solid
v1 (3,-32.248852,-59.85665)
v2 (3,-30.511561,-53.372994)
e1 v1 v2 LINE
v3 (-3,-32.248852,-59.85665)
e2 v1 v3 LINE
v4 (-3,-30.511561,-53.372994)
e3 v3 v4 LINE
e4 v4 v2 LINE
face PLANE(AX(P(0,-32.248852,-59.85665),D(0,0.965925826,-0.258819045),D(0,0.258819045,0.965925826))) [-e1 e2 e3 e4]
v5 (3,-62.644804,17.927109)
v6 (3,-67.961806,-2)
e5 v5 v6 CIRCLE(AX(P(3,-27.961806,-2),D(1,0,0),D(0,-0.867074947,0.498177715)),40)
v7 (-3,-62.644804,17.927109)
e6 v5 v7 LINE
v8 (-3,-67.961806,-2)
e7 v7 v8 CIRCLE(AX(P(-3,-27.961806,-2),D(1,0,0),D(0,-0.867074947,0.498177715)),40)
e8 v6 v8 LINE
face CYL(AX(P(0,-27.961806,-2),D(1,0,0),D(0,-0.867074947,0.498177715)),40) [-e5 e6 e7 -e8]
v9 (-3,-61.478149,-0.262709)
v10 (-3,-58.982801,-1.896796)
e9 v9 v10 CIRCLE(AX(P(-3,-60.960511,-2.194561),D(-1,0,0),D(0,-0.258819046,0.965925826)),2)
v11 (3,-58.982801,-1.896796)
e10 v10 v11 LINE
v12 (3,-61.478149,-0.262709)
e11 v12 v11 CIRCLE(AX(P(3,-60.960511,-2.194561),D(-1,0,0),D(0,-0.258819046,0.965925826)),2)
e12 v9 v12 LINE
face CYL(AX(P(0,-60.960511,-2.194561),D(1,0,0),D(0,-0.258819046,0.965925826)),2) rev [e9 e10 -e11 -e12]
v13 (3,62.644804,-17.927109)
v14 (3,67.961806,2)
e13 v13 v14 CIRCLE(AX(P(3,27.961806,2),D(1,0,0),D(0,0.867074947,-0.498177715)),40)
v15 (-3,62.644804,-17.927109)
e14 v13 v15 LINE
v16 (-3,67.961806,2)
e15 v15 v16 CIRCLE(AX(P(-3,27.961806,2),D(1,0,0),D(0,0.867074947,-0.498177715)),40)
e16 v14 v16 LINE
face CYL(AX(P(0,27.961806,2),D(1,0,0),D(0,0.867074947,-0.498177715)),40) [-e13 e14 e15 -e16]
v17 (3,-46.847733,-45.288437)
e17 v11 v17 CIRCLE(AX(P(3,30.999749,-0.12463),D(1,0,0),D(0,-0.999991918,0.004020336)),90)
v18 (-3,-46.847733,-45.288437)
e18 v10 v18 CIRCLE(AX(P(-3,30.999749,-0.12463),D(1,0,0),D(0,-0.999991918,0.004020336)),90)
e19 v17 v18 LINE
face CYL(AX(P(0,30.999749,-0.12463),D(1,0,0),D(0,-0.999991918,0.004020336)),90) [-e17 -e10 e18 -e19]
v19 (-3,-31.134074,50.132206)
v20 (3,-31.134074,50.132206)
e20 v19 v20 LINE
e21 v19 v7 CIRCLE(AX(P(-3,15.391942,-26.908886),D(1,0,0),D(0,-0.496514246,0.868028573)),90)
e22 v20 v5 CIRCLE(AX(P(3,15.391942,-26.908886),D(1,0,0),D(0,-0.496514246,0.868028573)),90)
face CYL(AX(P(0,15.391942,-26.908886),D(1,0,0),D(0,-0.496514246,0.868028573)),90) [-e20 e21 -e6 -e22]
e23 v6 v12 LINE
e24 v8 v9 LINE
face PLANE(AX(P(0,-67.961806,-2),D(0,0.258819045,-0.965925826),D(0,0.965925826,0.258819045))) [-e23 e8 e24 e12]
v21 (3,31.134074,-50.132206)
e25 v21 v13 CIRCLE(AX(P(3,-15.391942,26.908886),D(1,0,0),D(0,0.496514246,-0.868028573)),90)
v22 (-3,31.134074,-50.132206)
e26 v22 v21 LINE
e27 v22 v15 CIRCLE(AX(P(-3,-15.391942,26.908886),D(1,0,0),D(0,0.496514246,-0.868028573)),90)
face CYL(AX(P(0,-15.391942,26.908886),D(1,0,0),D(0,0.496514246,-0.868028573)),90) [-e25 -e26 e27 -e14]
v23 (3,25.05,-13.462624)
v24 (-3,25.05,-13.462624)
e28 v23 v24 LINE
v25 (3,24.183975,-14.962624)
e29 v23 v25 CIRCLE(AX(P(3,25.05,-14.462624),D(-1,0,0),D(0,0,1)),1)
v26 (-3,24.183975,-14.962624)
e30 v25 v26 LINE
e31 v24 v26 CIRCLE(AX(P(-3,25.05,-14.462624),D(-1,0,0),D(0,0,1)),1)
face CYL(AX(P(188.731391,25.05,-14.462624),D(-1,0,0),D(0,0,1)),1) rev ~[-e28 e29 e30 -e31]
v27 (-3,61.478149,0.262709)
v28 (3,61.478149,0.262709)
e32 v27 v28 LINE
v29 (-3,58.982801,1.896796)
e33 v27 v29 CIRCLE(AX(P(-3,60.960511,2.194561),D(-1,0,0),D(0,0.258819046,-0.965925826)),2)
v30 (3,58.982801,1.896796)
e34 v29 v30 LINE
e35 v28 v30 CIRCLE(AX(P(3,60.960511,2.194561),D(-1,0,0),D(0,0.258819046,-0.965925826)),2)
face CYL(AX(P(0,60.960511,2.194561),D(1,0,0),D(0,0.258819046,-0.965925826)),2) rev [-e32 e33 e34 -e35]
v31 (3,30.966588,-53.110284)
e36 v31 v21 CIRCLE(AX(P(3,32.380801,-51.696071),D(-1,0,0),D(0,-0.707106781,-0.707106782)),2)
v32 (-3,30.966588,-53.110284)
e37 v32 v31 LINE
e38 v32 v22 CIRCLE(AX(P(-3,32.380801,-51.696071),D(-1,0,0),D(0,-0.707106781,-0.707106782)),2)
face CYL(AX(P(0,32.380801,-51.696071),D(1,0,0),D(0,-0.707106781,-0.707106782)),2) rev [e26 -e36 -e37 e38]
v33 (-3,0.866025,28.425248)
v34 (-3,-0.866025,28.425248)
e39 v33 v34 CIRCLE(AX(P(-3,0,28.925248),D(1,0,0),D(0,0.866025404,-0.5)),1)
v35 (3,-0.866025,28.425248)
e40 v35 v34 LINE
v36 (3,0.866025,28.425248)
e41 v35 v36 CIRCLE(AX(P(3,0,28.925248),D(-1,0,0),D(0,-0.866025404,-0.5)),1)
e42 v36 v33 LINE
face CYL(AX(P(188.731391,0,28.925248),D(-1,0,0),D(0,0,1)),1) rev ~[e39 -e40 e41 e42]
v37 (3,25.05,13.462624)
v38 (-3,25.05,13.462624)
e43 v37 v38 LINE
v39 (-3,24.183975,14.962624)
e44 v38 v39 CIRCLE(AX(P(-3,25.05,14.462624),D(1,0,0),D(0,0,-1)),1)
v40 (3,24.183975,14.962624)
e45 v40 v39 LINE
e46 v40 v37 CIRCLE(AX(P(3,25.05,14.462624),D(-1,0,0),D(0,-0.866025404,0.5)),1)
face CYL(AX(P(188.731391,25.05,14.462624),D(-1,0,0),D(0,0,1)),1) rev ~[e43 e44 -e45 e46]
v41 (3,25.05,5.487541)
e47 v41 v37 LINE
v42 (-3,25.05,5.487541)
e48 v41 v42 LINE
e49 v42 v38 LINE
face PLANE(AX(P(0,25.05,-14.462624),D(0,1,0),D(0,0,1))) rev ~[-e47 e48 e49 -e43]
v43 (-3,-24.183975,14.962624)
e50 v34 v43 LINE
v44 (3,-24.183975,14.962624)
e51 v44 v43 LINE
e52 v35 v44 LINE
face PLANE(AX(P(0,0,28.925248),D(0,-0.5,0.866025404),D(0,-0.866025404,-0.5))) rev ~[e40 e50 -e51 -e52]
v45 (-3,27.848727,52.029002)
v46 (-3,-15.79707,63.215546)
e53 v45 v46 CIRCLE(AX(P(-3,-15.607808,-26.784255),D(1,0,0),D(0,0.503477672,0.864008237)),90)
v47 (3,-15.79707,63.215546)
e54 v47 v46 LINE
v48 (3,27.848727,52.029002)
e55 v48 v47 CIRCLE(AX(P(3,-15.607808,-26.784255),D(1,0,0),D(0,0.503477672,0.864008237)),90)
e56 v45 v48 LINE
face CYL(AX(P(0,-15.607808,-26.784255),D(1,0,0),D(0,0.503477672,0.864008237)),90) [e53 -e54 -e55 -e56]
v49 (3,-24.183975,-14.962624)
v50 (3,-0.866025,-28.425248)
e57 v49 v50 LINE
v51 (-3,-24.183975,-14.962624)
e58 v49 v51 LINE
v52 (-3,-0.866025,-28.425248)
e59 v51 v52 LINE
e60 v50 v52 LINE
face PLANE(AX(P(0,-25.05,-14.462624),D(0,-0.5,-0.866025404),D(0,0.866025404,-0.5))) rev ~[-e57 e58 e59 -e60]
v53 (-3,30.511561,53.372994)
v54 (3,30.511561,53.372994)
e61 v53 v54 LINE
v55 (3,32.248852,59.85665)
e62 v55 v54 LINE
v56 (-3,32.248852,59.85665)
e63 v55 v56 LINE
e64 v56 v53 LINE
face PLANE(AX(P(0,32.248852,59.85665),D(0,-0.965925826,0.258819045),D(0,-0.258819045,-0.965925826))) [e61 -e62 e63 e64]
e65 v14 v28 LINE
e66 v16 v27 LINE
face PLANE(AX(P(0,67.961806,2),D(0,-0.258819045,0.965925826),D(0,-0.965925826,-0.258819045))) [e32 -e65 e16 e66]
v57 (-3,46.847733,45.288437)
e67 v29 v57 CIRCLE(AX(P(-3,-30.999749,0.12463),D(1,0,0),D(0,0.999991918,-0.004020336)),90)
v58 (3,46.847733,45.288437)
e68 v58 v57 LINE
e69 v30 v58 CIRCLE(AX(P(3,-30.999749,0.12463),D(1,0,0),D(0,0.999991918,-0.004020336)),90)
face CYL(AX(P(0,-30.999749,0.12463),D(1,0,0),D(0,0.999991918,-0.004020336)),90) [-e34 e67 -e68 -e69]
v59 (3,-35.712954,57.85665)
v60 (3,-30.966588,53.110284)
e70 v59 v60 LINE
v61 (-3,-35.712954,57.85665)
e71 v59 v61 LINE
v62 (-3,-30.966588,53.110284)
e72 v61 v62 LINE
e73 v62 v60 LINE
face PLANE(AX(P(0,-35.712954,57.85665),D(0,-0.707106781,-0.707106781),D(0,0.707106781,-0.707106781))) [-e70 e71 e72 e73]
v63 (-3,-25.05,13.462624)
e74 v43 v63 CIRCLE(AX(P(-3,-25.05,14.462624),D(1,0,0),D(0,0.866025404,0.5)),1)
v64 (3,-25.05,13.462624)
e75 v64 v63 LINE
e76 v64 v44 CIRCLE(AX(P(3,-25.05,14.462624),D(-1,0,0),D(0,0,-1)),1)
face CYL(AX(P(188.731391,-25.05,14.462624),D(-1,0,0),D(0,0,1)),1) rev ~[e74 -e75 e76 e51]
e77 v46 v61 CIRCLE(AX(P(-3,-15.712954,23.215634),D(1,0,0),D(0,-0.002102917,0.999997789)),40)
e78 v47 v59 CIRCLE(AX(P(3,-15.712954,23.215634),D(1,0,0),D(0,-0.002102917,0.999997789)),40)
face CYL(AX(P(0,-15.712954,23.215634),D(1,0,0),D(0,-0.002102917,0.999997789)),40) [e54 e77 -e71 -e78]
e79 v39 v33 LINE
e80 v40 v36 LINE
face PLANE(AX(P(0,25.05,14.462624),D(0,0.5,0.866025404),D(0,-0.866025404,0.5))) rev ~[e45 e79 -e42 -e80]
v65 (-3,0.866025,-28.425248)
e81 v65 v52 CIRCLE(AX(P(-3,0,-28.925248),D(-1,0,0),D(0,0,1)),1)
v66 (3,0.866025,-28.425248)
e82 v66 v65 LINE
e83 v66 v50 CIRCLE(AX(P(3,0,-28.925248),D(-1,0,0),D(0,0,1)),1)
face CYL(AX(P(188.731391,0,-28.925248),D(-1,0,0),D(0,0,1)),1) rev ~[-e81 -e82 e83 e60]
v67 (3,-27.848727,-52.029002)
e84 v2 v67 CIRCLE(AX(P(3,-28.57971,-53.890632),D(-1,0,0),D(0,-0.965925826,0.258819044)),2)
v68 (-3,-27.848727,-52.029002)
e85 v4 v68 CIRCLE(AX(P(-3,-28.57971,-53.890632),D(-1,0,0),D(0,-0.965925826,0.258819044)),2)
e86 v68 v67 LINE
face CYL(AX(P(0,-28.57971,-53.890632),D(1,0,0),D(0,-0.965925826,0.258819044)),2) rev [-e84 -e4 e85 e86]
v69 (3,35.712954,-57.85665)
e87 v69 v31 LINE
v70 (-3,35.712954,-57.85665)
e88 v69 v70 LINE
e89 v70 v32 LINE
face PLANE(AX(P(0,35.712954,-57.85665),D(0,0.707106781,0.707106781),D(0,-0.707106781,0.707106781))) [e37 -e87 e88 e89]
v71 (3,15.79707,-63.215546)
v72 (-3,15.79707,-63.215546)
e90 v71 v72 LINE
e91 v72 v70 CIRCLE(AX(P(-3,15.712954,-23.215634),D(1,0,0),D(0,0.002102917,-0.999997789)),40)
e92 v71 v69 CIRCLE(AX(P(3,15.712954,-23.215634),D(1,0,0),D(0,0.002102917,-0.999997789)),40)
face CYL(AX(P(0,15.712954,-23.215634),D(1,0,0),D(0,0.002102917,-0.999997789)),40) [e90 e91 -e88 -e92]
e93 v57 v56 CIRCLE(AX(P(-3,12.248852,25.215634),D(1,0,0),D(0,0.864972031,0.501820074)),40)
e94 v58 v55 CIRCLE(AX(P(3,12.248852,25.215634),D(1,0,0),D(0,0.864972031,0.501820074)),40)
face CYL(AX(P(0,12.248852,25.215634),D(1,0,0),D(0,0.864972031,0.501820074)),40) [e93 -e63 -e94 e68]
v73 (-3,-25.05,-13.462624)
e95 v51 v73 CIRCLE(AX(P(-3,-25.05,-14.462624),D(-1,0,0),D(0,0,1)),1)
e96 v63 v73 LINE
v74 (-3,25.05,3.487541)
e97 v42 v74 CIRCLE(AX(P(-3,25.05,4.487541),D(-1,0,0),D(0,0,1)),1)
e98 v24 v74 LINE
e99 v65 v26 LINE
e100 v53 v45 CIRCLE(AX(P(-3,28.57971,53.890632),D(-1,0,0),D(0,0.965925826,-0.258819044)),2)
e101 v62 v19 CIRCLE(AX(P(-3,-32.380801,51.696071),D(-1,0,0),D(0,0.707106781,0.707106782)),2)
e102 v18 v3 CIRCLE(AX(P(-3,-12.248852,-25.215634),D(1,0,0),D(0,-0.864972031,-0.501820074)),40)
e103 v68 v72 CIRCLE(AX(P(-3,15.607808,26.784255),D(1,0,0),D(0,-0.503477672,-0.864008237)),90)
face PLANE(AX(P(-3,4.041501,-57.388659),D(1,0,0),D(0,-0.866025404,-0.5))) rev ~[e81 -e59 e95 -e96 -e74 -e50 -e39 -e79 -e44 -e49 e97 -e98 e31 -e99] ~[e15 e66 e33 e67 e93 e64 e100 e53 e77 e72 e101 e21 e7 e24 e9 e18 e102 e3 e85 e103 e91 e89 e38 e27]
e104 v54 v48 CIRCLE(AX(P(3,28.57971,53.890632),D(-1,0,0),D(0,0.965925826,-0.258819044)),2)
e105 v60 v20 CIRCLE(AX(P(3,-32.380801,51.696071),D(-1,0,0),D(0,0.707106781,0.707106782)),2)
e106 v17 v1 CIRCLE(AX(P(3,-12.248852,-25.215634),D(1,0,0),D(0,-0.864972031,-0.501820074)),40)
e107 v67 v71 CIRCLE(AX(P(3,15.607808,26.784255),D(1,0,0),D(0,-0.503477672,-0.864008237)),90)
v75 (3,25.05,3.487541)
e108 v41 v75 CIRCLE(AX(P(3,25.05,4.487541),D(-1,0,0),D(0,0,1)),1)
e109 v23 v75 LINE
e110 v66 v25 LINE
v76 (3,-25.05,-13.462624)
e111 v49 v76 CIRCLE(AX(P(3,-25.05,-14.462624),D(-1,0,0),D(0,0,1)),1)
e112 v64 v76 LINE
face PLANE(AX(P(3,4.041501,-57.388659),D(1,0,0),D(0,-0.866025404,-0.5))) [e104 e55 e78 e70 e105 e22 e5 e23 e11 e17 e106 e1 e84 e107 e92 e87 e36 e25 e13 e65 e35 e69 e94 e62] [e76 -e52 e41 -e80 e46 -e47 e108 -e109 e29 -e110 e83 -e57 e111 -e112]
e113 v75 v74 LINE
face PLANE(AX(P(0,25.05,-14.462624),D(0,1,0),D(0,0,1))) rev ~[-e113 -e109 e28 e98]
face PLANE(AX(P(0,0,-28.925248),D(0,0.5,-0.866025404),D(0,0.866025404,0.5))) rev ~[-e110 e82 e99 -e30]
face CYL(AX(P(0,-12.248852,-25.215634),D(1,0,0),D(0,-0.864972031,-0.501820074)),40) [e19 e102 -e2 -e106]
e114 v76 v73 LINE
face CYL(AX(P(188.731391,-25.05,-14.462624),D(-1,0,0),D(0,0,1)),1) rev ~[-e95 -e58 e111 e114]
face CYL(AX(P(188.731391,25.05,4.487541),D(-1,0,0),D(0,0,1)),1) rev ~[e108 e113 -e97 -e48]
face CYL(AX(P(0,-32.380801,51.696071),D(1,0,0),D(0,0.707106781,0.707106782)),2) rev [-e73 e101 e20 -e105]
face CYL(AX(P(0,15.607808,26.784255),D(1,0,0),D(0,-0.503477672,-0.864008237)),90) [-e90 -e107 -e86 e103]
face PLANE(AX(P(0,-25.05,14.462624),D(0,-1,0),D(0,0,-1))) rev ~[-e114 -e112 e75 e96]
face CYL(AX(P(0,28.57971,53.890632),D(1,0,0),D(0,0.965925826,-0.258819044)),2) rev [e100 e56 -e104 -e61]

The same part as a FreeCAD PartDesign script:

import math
import FreeCAD as App
import Part
import Sketcher

V = App.Vector
Q = App.Units.Quantity


def add_polygon(sketch, points):
    """Adds a closed chain of lines whose ends are joined by coincident constraints."""
    first, n = sketch.GeometryCount, len(points)
    for a, b in zip(points, points[1:] + points[:1]):
        sketch.addGeometry(Part.LineSegment(App.Vector(*a, 0), App.Vector(*b, 0)), False)
    for i in range(n):
        sketch.addConstraint(Sketcher.Constraint("Coincident", first + i, 2, first + (i + 1) % n, 1))

doc = App.newDocument("Part")
body = doc.addObject("PartDesign::Body", "Body")

# Sketch on YZ plane
sketch1 = doc.addObject("Sketcher::SketchObject", "Sketch")
body.addObject(sketch1)
sketch1.AttachmentSupport = (doc.YZ_Plane, [""])
sketch1.MapMode = "FlatFace"
sketch1.addGeometry(Part.Circle(V(0, 0, 0), V(0, 0, 1), 59), False)  # 0
add_polygon(sketch1, [(25, 14), (25, -14), (0, -29), (-25, -14), (-25, 14), (0, 29)])  # lines 1-6
sketch1.addConstraint(Sketcher.Constraint("Vertical", 1))
sketch1.addConstraint(Sketcher.Constraint("Vertical", 4))
sketch1.addConstraint(Sketcher.Constraint("Coincident", 0, 3, -1, 1))
sketch1.addConstraint(Sketcher.Constraint("Symmetric", 1, 2, 4, 2, -1, 1))
sketch1.addConstraint(Sketcher.Constraint("Symmetric", 2, 2, 5, 2, -1, 1))
sketch1.addConstraint(Sketcher.Constraint("PointOnObject", 2, 2, -2))
sketch1.addConstraint(Sketcher.Constraint("Parallel", 3, 6))
sketch1.addConstraint(Sketcher.Constraint("Horizontal", 1, 2, 3, 2))
sketch1.addConstraint(Sketcher.Constraint("Diameter", 0, 118.0))
sketch1.addConstraint(Sketcher.Constraint("Angle", 2, Q("-150 deg")))
sketch1.addConstraint(Sketcher.Constraint("DistanceX", 3, 2, 1, 2, 50.1))
sketch1.addConstraint(Sketcher.Constraint("DistanceY", 1, 2, 1, 1, 28.925248))
pad1 = doc.addObject("PartDesign::Pad", "Pad")
body.addObject(pad1)
pad1.Profile = sketch1
pad1.Length = 6
pad1.Midplane = True

# Sketch on YZ plane
sketch2 = doc.addObject("Sketcher::SketchObject", "Sketch001")
body.addObject(sketch2)
sketch2.AttachmentSupport = (doc.YZ_Plane, [""])
sketch2.MapMode = "FlatFace"
sketch2.addGeometry(Part.LineSegment(V(68, 2, 0), V(61.5, 0.3, 0)), False)
sketch2.addGeometry(Part.ArcOfCircle(Part.Circle(V(61, 2.2, 0), V(0, 0, 1), 2), math.radians(-178), math.radians(-75)), False)
sketch2.addGeometry(Part.ArcOfCircle(Part.Circle(V(0, 0, 0), V(0, 0, 1), 59), math.radians(-60), math.radians(2)), False)
sketch2.addGeometry(Part.ArcOfCircle(Part.Circle(V(-15.4, 26.9, 0), V(0, 0, 1), 90), math.radians(-60), math.radians(-30)), False)
sketch2.addGeometry(Part.ArcOfCircle(Part.Circle(V(28, 2, 0), V(0, 0, 1), 40), math.radians(-30), math.radians(0)), False)
sketch2.addConstraint(Sketcher.Constraint("Tangent", 0, 2, 1, 2))
sketch2.addConstraint(Sketcher.Constraint("Tangent", 1, 1, 2, 2))
sketch2.addConstraint(Sketcher.Constraint("Tangent", 2, 1, 3, 1))
sketch2.addConstraint(Sketcher.Constraint("Tangent", 3, 2, 4, 1))
sketch2.addConstraint(Sketcher.Constraint("Coincident", 4, 2, 0, 1))
sketch2.addConstraint(Sketcher.Constraint("Coincident", 2, 3, -1, 1))
sketch2.addConstraint(Sketcher.Constraint("Radius", 1, 2.0))
sketch2.addConstraint(Sketcher.Constraint("Radius", 2, 59.0))
sketch2.addConstraint(Sketcher.Constraint("Radius", 3, 90.0))
sketch2.addConstraint(Sketcher.Constraint("Radius", 4, 40.0))
sketch2.addConstraint(Sketcher.Constraint("Angle", 0, Q("-165 deg")))
sketch2.addConstraint(Sketcher.Constraint("DistanceY", -1, 1, 4, 3, 2.0))
sketch2.addConstraint(Sketcher.Constraint("DistanceY", -1, 1, 4, 2, 2.0))
sketch2.addConstraint(Sketcher.Constraint("DistanceX", 4, 3, 1, 1, 31.0))
pad2 = doc.addObject("PartDesign::Pad", "Pad001")
body.addObject(pad2)
pad2.Profile = sketch2
pad2.Length = 6
pad2.Midplane = True
doc.recompute()

polarpattern = doc.addObject("PartDesign::PolarPattern", "PolarPattern")
body.addObject(polarpattern)
polarpattern.Originals = [pad2]
polarpattern.Axis = (doc.X_Axis, [""])
polarpattern.Angle = 360
polarpattern.Occurrences = 6
body.Tip = polarpattern

# Sketch on YZ plane
sketch3 = doc.addObject("Sketcher::SketchObject", "Sketch002")
body.addObject(sketch3)
sketch3.AttachmentSupport = (doc.YZ_Plane, [""])
sketch3.MapMode = "FlatFace"
sketch3.AttachmentOffset = App.Placement(V(0, 0, 3), App.Rotation())
sketch3.addGeometry(Part.Circle(V(25.1, 14.5, 0), V(0, 0, 1), 1), False)
sketch3.addGeometry(Part.Circle(V(25.1, -14.5, 0), V(0, 0, 1), 1), False)
sketch3.addGeometry(Part.Circle(V(0, -28.9, 0), V(0, 0, 1), 1), False)
sketch3.addGeometry(Part.Circle(V(-25.1, -14.5, 0), V(0, 0, 1), 1), False)
sketch3.addGeometry(Part.Circle(V(-25.1, 14.5, 0), V(0, 0, 1), 1), False)
sketch3.addGeometry(Part.Circle(V(0, 28.9, 0), V(0, 0, 1), 1), False)
sketch3.addConstraint(Sketcher.Constraint("Equal", 0, 1))
sketch3.addConstraint(Sketcher.Constraint("Equal", 1, 2))
sketch3.addConstraint(Sketcher.Constraint("Equal", 2, 3))
sketch3.addConstraint(Sketcher.Constraint("Equal", 3, 4))
sketch3.addConstraint(Sketcher.Constraint("Equal", 4, 5))
sketch3.addConstraint(Sketcher.Constraint("Symmetric", 0, 3, 3, 3, -1, 1))
sketch3.addConstraint(Sketcher.Constraint("Symmetric", 1, 3, 4, 3, -1, 1))
sketch3.addConstraint(Sketcher.Constraint("Symmetric", 2, 3, 5, 3, -1, 1))
sketch3.addConstraint(Sketcher.Constraint("Symmetric", 1, 3, 3, 3, -2))
sketch3.addConstraint(Sketcher.Constraint("PointOnObject", 2, 3, -2))
sketch3.addConstraint(Sketcher.Constraint("Diameter", 0, 2.0))
sketch3.addConstraint(Sketcher.Constraint("DistanceX", 3, 3, 1, 3, 50.1))
sketch3.addConstraint(Sketcher.Constraint("DistanceY", 2, 3, -1, 1, 28.925248))
sketch3.addConstraint(Sketcher.Constraint("DistanceY", 1, 3, 0, 3, 28.925248))
doc.recompute()
hole = doc.addObject("PartDesign::Hole", "Hole")
body.addObject(hole)
hole.Profile = sketch3
hole.ThreadType = "None"
hole.Diameter = 2
hole.DepthType = "ThroughAll"

# Sketch on YZ plane
sketch4 = doc.addObject("Sketcher::SketchObject", "Sketch003")
body.addObject(sketch4)
sketch4.AttachmentSupport = (doc.YZ_Plane, [""])
sketch4.MapMode = "FlatFace"
sketch4.AttachmentOffset = App.Placement(V(0, 0, 3), App.Rotation())
sketch4.addGeometry(Part.Circle(V(25.1, 4.5, 0), V(0, 0, 1), 1), False)
sketch4.addConstraint(Sketcher.Constraint("Diameter", 0, 2.0))
sketch4.addConstraint(Sketcher.Constraint("DistanceX", -1, 1, 0, 3, 25.05))
sketch4.addConstraint(Sketcher.Constraint("DistanceY", -1, 1, 0, 3, 4.487541))
doc.recompute()
hole2 = doc.addObject("PartDesign::Hole", "Hole001")
body.addObject(hole2)
hole2.Profile = sketch4
hole2.ThreadType = "None"
hole2.Diameter = 2
hole2.DepthType = "ThroughAll"

doc.recompute()
